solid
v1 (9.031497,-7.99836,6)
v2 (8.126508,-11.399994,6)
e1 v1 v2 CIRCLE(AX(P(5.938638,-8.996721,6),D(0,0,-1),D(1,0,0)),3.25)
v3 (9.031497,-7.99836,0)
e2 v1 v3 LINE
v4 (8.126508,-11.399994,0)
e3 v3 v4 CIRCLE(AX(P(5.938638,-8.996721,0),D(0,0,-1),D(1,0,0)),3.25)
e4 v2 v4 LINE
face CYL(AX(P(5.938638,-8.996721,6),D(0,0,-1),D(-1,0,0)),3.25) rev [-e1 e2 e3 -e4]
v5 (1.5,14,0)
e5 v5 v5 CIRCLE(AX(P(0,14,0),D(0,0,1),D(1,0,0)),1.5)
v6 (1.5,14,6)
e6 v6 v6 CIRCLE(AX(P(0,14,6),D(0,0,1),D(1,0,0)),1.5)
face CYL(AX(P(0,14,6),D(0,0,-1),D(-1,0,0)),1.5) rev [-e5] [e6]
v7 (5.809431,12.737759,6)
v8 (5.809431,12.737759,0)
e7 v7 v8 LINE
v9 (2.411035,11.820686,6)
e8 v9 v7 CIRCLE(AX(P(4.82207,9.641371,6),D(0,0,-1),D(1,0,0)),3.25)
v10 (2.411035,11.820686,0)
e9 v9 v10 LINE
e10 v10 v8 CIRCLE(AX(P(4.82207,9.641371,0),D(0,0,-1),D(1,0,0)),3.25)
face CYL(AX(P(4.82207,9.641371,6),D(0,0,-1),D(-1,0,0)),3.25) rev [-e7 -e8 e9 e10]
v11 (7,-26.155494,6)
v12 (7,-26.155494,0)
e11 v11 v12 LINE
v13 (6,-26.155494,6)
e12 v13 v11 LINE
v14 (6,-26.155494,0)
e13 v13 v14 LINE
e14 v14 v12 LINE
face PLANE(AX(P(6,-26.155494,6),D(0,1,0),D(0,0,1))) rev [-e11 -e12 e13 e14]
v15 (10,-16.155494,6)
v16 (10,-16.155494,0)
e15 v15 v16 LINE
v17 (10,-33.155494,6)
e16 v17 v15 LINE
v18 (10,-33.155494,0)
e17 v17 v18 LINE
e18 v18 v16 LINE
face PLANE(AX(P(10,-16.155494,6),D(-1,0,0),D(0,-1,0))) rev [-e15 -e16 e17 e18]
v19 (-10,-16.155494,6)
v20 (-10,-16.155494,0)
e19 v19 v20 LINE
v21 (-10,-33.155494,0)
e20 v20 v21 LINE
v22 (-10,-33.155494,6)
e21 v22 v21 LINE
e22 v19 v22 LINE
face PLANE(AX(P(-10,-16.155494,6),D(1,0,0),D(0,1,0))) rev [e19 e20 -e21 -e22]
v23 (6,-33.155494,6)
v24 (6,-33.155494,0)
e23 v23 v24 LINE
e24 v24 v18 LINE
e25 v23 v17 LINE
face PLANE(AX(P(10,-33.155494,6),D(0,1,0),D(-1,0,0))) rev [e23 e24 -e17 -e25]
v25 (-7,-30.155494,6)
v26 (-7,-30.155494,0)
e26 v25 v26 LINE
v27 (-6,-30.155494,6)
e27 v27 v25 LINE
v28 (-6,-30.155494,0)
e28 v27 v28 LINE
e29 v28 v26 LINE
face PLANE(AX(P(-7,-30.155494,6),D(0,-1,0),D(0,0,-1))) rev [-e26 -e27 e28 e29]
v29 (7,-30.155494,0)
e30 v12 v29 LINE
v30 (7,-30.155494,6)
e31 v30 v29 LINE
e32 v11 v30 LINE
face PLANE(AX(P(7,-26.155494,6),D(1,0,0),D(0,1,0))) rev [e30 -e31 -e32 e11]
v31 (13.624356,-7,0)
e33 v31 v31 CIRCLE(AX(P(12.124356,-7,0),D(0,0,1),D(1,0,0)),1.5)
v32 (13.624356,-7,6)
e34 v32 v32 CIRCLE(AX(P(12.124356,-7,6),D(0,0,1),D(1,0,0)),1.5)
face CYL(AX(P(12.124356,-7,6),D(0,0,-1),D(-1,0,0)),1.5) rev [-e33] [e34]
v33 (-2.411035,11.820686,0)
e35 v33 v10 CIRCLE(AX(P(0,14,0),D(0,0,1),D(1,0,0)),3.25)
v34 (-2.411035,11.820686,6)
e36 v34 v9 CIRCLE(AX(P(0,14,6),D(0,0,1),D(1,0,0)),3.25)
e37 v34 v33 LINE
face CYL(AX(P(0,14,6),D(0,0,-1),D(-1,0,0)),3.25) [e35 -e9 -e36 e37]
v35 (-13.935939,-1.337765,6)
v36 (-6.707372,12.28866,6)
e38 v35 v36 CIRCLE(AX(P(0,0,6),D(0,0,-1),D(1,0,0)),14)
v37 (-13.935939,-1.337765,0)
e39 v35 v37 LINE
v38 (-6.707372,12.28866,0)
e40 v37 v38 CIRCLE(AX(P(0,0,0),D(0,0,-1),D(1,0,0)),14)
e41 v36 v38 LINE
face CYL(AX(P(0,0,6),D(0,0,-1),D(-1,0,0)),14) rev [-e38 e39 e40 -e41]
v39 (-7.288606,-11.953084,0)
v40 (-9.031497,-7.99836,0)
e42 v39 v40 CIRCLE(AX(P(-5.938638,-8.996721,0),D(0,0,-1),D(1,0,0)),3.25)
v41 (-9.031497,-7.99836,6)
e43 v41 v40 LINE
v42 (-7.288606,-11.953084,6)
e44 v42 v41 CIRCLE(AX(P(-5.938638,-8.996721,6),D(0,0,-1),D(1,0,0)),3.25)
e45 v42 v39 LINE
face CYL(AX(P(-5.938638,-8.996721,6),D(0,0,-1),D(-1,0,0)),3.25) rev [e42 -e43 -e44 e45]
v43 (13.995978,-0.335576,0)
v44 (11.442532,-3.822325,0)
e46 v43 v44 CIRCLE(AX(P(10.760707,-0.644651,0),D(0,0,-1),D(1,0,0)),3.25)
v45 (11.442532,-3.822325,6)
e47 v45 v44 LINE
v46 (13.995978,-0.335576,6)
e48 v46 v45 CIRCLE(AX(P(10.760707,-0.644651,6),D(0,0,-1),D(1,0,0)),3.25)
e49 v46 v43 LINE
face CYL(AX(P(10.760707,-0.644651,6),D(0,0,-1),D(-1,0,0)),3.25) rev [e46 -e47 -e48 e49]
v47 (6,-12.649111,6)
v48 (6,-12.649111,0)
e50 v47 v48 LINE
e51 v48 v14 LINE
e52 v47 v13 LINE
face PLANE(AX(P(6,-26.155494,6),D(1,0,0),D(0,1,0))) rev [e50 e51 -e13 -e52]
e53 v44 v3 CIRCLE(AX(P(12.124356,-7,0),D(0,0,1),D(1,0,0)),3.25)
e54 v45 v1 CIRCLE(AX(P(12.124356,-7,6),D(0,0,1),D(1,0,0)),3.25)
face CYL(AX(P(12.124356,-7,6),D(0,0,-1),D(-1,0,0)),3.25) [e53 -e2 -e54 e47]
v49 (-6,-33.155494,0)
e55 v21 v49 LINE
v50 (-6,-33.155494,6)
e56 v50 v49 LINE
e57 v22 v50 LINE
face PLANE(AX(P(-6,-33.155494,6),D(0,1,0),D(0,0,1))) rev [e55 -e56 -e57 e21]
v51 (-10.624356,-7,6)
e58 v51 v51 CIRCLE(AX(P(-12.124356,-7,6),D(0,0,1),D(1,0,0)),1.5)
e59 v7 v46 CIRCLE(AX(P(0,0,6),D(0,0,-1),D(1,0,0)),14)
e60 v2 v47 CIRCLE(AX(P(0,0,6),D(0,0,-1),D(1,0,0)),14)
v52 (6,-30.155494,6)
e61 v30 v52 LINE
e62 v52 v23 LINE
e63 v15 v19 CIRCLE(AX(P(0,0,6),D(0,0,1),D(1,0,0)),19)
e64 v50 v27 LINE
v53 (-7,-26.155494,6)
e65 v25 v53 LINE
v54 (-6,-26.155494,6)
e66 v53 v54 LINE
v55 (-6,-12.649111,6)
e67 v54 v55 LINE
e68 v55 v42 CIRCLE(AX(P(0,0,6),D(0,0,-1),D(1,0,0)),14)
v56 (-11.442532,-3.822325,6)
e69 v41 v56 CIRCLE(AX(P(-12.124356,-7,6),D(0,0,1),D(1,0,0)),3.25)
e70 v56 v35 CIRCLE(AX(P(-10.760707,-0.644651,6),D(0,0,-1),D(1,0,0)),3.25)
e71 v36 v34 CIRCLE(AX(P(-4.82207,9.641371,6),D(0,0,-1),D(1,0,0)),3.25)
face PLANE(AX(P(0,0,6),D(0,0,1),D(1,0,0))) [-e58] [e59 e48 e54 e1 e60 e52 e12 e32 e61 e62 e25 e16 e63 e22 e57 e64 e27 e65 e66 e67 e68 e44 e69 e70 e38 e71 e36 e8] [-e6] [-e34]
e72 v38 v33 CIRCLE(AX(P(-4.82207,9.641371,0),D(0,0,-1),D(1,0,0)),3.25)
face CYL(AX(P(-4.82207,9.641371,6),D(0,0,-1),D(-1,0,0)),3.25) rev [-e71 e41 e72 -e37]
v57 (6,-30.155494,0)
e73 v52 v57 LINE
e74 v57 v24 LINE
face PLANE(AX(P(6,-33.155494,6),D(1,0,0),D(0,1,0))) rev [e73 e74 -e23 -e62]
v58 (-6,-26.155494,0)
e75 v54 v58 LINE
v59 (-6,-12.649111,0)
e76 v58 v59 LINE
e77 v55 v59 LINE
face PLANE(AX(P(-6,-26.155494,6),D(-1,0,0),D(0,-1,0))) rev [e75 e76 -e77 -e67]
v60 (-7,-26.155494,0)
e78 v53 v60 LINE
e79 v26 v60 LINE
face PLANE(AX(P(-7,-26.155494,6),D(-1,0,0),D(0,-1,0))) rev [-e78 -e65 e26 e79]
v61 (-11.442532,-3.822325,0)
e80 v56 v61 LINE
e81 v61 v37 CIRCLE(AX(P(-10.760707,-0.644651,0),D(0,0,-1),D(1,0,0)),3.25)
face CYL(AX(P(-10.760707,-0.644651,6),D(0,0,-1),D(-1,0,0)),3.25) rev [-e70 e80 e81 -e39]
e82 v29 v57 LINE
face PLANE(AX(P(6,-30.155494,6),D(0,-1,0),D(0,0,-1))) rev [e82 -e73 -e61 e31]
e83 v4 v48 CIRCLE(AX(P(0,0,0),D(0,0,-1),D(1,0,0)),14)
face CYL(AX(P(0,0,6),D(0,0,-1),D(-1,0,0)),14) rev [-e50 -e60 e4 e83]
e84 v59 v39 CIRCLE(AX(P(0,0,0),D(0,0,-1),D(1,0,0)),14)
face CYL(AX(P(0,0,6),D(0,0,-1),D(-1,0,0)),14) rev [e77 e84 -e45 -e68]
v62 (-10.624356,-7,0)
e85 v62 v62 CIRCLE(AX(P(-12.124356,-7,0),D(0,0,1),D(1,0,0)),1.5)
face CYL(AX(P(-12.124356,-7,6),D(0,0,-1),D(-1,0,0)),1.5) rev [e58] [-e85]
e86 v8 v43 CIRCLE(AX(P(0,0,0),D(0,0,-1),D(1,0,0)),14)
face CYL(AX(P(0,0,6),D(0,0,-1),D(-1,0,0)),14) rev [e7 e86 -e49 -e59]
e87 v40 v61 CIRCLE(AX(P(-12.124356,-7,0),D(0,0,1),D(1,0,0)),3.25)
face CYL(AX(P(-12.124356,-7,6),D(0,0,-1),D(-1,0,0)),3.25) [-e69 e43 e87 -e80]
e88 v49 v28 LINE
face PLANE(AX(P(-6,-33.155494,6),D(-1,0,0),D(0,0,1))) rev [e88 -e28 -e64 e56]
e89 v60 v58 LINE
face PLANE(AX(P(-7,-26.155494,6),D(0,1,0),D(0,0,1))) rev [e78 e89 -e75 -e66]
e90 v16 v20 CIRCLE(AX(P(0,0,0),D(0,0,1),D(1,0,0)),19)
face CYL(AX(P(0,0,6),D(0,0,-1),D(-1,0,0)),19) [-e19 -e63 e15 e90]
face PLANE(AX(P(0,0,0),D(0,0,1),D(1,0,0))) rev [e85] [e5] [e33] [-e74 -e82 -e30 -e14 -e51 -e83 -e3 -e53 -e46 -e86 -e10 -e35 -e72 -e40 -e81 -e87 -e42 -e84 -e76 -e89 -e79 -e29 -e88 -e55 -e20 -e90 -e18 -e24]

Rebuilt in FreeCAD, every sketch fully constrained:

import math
import FreeCAD as App
import Part
import Sketcher
from FreeCAD import Vector
Q = App.Units.Quantity

doc = App.newDocument("Part")
params = doc.addObject("Spreadsheet::Sheet", "Params")
for row, (alias, value) in enumerate([
    ("sketch1_diameter", "3 mm"),
    ("sketch1_radius", "14 mm"),
    ("sketch1_radius2", "19 mm"),
    ("sketch1_width", "1 mm"),
    ("sketch1_width2", "4 mm"),
    ("pad1_length", "6 mm"),
], start=1):
    params.set(f"A{row}", alias)
    params.set(f"B{row}", "=" + value)
    params.setAlias(f"B{row}", alias)

body = doc.addObject("PartDesign::Body", "Body")

# Sketch on XY plane
sketch1 = body.newObject("Sketcher::SketchObject", "Sketch")
sketch1.AttachmentSupport = (doc.getObject("XY_Plane"), [""])
sketch1.MapMode = "FlatFace"
sketch1.addGeometry([
    Part.LineSegment(Vector(-6, -33.2, 0), Vector(-6, -30.2, 0)),  # 0
    Part.LineSegment(Vector(-6, -30.2, 0), Vector(-7, -30.2, 0)),  # 1
    Part.LineSegment(Vector(-7, -30.2, 0), Vector(-7, -26.2, 0)),  # 2
    Part.LineSegment(Vector(-7, -26.2, 0), Vector(-6, -26.2, 0)),  # 3
    Part.LineSegment(Vector(-6, -26.2, 0), Vector(-6, -12.6, 0)),  # 4
    Part.ArcOfCircle(Part.Circle(Vector(0, 0, 0), Vector(0, 0, 1), 14), math.radians(-121.37), math.radians(-115.38)),  # 5
    Part.ArcOfCircle(Part.Circle(Vector(-5.9, -9, 0), Vector(0, 0, 1), 3.2), math.radians(162), math.radians(245)),  # 6
    Part.ArcOfCircle(Part.Circle(Vector(-12.1, -7, 0), Vector(0, 0, 1), 3.3), math.radians(-18), math.radians(78)),  # 7
    Part.ArcOfCircle(Part.Circle(Vector(-10.8, -0.6, 0), Vector(0, 0, 1), 3.2), math.radians(-168), math.radians(-102)),  # 8
    Part.ArcOfCircle(Part.Circle(Vector(0, 0, 0), Vector(0, 0, 1), 14), math.radians(119), math.radians(185)),  # 9
    Part.ArcOfCircle(Part.Circle(Vector(-4.8, 9.6, 0), Vector(0, 0, 1), 3.2), math.radians(42), math.radians(125)),  # 10
    Part.ArcOfCircle(Part.Circle(Vector(0, 14, 0), Vector(0, 0, 1), 3.3), math.radians(-138), math.radians(-42)),  # 11
    Part.ArcOfCircle(Part.Circle(Vector(4.8, 9.6, 0), Vector(0, 0, 1), 3.2), math.radians(72), math.radians(138)),  # 12
    Part.ArcOfCircle(Part.Circle(Vector(0, 0, 0), Vector(0, 0, 1), 14), math.radians(-1), math.radians(65)),  # 13
    Part.ArcOfCircle(Part.Circle(Vector(10.8, -0.6, 0), Vector(0, 0, 1), 3.2), math.radians(-78), math.radians(5)),  # 14
    Part.ArcOfCircle(Part.Circle(Vector(12.1, -7, 0), Vector(0, 0, 1), 3.3), math.radians(102), math.radians(198)),  # 15
    Part.ArcOfCircle(Part.Circle(Vector(5.9, -9, 0), Vector(0, 0, 1), 3.2), math.radians(-48), math.radians(18)),  # 16
    Part.ArcOfCircle(Part.Circle(Vector(0, 0, 0), Vector(0, 0, 1), 14), math.radians(-64.62), math.radians(-54.52)),  # 17
    Part.LineSegment(Vector(6, -12.6, 0), Vector(6, -26.2, 0)),  # 18
    Part.LineSegment(Vector(6, -26.2, 0), Vector(7, -26.2, 0)),  # 19
    Part.LineSegment(Vector(7, -26.2, 0), Vector(7, -30.2, 0)),  # 20
    Part.LineSegment(Vector(7, -30.2, 0), Vector(6, -30.2, 0)),  # 21
    Part.LineSegment(Vector(6, -30.2, 0), Vector(6, -33.2, 0)),  # 22
    Part.LineSegment(Vector(6, -33.2, 0), Vector(10, -33.2, 0)),  # 23
    Part.LineSegment(Vector(10, -33.2, 0), Vector(10, -16.2, 0)),  # 24
    Part.ArcOfCircle(Part.Circle(Vector(0, 0, 0), Vector(0, 0, 1), 19), math.radians(-58), math.radians(238)),  # 25
    Part.LineSegment(Vector(-10, -16.2, 0), Vector(-10, -33.2, 0)),  # 26
    Part.LineSegment(Vector(-10, -33.2, 0), Vector(-6, -33.2, 0)),  # 27
    Part.Circle(Vector(-12.1, -7, 0), Vector(0, 0, 1), 1.5),  # 28
    Part.Circle(Vector(12.1, -7, 0), Vector(0, 0, 1), 1.5),  # 29
    Part.Circle(Vector(0, 14, 0), Vector(0, 0, 1), 1.5),  # 30
], False)
sketch1.addConstraint([
    Sketcher.Constraint("Coincident", 0, 2, 1, 1),
    Sketcher.Constraint("Coincident", 1, 2, 2, 1),
    Sketcher.Constraint("Coincident", 2, 2, 3, 1),
    Sketcher.Constraint("Coincident", 3, 2, 4, 1),
    Sketcher.Constraint("Coincident", 4, 2, 5, 2),
    Sketcher.Constraint("Coincident", 5, 1, 6, 2),
    Sketcher.Constraint("Tangent", 6, 1, 7, 1),
    Sketcher.Constraint("Tangent", 7, 2, 8, 2),
    Sketcher.Constraint("Coincident", 8, 1, 9, 2),
    Sketcher.Constraint("Coincident", 9, 1, 10, 2),
    Sketcher.Constraint("Tangent", 10, 1, 11, 1),
    Sketcher.Constraint("Tangent", 11, 2, 12, 2),
    Sketcher.Constraint("Coincident", 12, 1, 13, 2),
    Sketcher.Constraint("Coincident", 13, 1, 14, 2),
    Sketcher.Constraint("Tangent", 14, 1, 15, 1),
    Sketcher.Constraint("Tangent", 15, 2, 16, 2),
    Sketcher.Constraint("Coincident", 16, 1, 17, 2),
    Sketcher.Constraint("Coincident", 17, 1, 18, 1),
    Sketcher.Constraint("Coincident", 18, 2, 19, 1),
    Sketcher.Constraint("Coincident", 19, 2, 20, 1),
    Sketcher.Constraint("Coincident", 20, 2, 21, 1),
    Sketcher.Constraint("Coincident", 21, 2, 22, 1),
    Sketcher.Constraint("Coincident", 22, 2, 23, 1),
    Sketcher.Constraint("Coincident", 23, 2, 24, 1),
    Sketcher.Constraint("Coincident", 24, 2, 25, 1),
    Sketcher.Constraint("Coincident", 25, 2, 26, 1),
    Sketcher.Constraint("Coincident", 26, 2, 27, 1),
    Sketcher.Constraint("Coincident", 27, 2, 0, 1),
    Sketcher.Constraint("Vertical", 0),
    Sketcher.Constraint("Horizontal", 1),
    Sketcher.Constraint("Vertical", 2),
    Sketcher.Constraint("Horizontal", 3),
    Sketcher.Constraint("Vertical", 4),
    Sketcher.Constraint("Vertical", 18),
    Sketcher.Constraint("Horizontal", 19),
    Sketcher.Constraint("Vertical", 20),
    Sketcher.Constraint("Horizontal", 21),
    Sketcher.Constraint("Vertical", 22),
    Sketcher.Constraint("Horizontal", 23),
    Sketcher.Constraint("Vertical", 24),
    Sketcher.Constraint("Vertical", 26),
    Sketcher.Constraint("Horizontal", 27),
    Sketcher.Constraint("Coincident", 5, 3, -1, 1),
    Sketcher.Constraint("Coincident", 9, 3, -1, 1),
    Sketcher.Constraint("Coincident", 13, 3, -1, 1),
    Sketcher.Constraint("Coincident", 17, 3, -1, 1),
    Sketcher.Constraint("Coincident", 25, 3, -1, 1),
    Sketcher.Constraint("Coincident", 28, 3, 7, 3),
    Sketcher.Constraint("Coincident", 29, 3, 15, 3),
    Sketcher.Constraint("Coincident", 30, 3, 11, 3),
    Sketcher.Constraint("Equal", 6, 7),
    Sketcher.Constraint("Equal", 7, 8),
    Sketcher.Constraint("Equal", 5, 9),
    Sketcher.Constraint("Equal", 8, 10),
    Sketcher.Constraint("Equal", 10, 11),
    Sketcher.Constraint("Equal", 11, 12),
    Sketcher.Constraint("Equal", 9, 13),
    Sketcher.Constraint("Equal", 12, 14),
    Sketcher.Constraint("Equal", 14, 15),
    Sketcher.Constraint("Equal", 15, 16),
    Sketcher.Constraint("Equal", 13, 17),
    Sketcher.Constraint("Equal", 28, 29),
    Sketcher.Constraint("Equal", 29, 30),
    Sketcher.Constraint("Symmetric", 10, 3, 12, 3, -2),
    Sketcher.Constraint("Symmetric", 8, 3, 14, 3, -2),
    Sketcher.Constraint("Symmetric", 6, 3, 16, 3, -2),
    Sketcher.Constraint("Symmetric", 3, 2, 18, 2, -2),
    Sketcher.Constraint("Symmetric", 1, 2, 20, 2, -2),
    Sketcher.Constraint("Symmetric", 23, 2, 26, 2, -2),
    Sketcher.Constraint("Vertical", 0, 2, 3, 2),
    Sketcher.Constraint("Vertical", 18, 2, 21, 2),
    Sketcher.Constraint("Equal", 27, 2),
    Sketcher.Constraint("Diameter", 28, Q("3 mm")),
    Sketcher.Constraint("Radius", 5, Q("14 mm")),
    Sketcher.Constraint("Radius", 25, Q("19 mm")),
    Sketcher.Constraint("DistanceX", 1, 2, 1, 1, Q("1 mm")),
    Sketcher.Constraint("DistanceX", 23, 1, 23, 2, Q("4 mm")),
    Sketcher.Constraint("DistanceY", 0, 1, 0, 2, Q("3 mm")),
    Sketcher.Constraint("DistanceY", 24, 1, 24, 2, Q("17 mm")),
    Sketcher.Constraint("Radius", 6, Q("3.25 mm")),
    Sketcher.Constraint("DistanceY", 7, 3, -1, 1, Q("7 mm")),
    Sketcher.Constraint("DistanceY", -1, 1, 11, 3, Q("14 mm")),
    Sketcher.Constraint("DistanceX", 0, 2, -1, 1, Q("6 mm")),
    Sketcher.Constraint("DistanceX", 8, 3, 5, 1, Q("3.472101 mm")),
    Sketcher.Constraint("DistanceX", 9, 1, 10, 3, Q("1.885302 mm")),
    Sketcher.Constraint("DistanceY", 24, 2, 16, 1, Q("4.7555 mm")),
    Sketcher.Constraint("DistanceY", 6, 3, -1, 1, Q("8.996721 mm")),
])
sketch1.setExpression("Constraints[72]", "Params.sketch1_diameter")
sketch1.setExpression("Constraints[73]", "Params.sketch1_radius")
sketch1.setExpression("Constraints[74]", "Params.sketch1_radius2")
sketch1.setExpression("Constraints[75]", "Params.sketch1_width")
sketch1.setExpression("Constraints[76]", "Params.sketch1_width2")
pad1 = body.newObject("PartDesign::Pad", "Pad")
pad1.Profile = sketch1
pad1.setExpression("Length", "Params.pad1_length")

doc.recompute()
